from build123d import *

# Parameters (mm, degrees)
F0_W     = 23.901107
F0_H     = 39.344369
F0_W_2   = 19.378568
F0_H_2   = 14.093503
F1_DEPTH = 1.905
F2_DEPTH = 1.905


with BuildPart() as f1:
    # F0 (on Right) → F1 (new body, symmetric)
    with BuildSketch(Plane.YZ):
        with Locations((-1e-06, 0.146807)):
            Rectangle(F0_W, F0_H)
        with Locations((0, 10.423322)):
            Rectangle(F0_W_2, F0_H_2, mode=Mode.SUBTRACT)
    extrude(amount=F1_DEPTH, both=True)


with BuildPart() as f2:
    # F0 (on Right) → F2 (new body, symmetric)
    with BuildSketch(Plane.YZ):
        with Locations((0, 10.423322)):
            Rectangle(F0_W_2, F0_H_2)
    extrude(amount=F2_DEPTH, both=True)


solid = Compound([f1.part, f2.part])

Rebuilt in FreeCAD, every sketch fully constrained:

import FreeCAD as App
import Part
import Sketcher

V = App.Vector
Q = App.Units.Quantity

doc = App.newDocument("Part")
body = doc.addObject("PartDesign::Body", "Body")

sketch1 = doc.addObject("Sketcher::SketchObject", "Sketch")
body.addObject(sketch1)
sketch1.AttachmentSupport = (doc.YZ_Plane, [""])
sketch1.MapMode = "FlatFace"
sketch1.addGeometry([
    Part.LineSegment(V(-12, 20, 0), V(-12, -20, 0)),
    Part.LineSegment(V(-12, -20, 0), V(12, -20, 0)),
    Part.LineSegment(V(12, -20, 0), V(12, 20, 0)),
    Part.LineSegment(V(12, 20, 0), V(-12, 20, 0)),
    Part.LineSegment(V(10, 3, 0), V(-10, 3, 0)),
    Part.LineSegment(V(-10, 3, 0), V(-10, 17, 0)),
    Part.LineSegment(V(-10, 17, 0), V(10, 17, 0)),
    Part.LineSegment(V(10, 17, 0), V(10, 3, 0)),
], False)
sketch1.addConstraint([
    Sketcher.Constraint("Coincident", 0, 2, 1, 1),
    Sketcher.Constraint("Coincident", 1, 2, 2, 1),
    Sketcher.Constraint("Coincident", 2, 2, 3, 1),
    Sketcher.Constraint("Coincident", 3, 2, 0, 1),
    Sketcher.Constraint("Coincident", 4, 2, 5, 1),
    Sketcher.Constraint("Coincident", 5, 2, 6, 1),
    Sketcher.Constraint("Coincident", 6, 2, 7, 1),
    Sketcher.Constraint("Coincident", 7, 2, 4, 1),
    Sketcher.Constraint("Vertical", 0),
    Sketcher.Constraint("Horizontal", 1),
    Sketcher.Constraint("Vertical", 2),
    Sketcher.Constraint("Horizontal", 3),
    Sketcher.Constraint("Horizontal", 4),
    Sketcher.Constraint("Vertical", 5),
    Sketcher.Constraint("Horizontal", 6),
    Sketcher.Constraint("Vertical", 7),
    Sketcher.Constraint("DistanceX", 4, 2, 4, 1, Q("19.378568 mm")),
    Sketcher.Constraint("DistanceY", 0, 2, 0, 1, Q("39.344369 mm")),
    Sketcher.Constraint("DistanceX", 1, 1, 1, 2, Q("23.901107 mm")),
    Sketcher.Constraint("DistanceY", 5, 1, 5, 2, Q("14.093503 mm")),
    Sketcher.Constraint("DistanceY", -1, 1, 2, 2, Q("19.818991 mm")),
    Sketcher.Constraint("DistanceY", -1, 1, 4, 2, Q("3.376571 mm")),
    Sketcher.Constraint("DistanceX", 3, 2, 4, 2, Q("2.261271 mm")),
    Sketcher.Constraint("DistanceX", 0, 2, -1, 1, Q("11.950555 mm")),
])
pad1 = doc.addObject("PartDesign::Pad", "Pad")
body.addObject(pad1)
pad1.Profile = sketch1
pad1.Length = Q("0.15 in")
pad1.Midplane = True
body2 = doc.addObject("PartDesign::Body", "Body001")

sketch2 = doc.addObject("Sketcher::SketchObject", "Sketch001")
body2.addObject(sketch2)
sketch2.AttachmentSupport = (doc.getObject("YZ_Plane001"), [""])
sketch2.MapMode = "FlatFace"
sketch2.addGeometry([
    Part.LineSegment(V(-10, 17, 0), V(-10, 3, 0)),
    Part.LineSegment(V(-10, 3, 0), V(10, 3, 0)),
    Part.LineSegment(V(10, 3, 0), V(10, 17, 0)),
    Part.LineSegment(V(10, 17, 0), V(-10, 17, 0)),
], False)
sketch2.addConstraint([
    Sketcher.Constraint("Coincident", 0, 2, 1, 1),
    Sketcher.Constraint("Coincident", 1, 2, 2, 1),
    Sketcher.Constraint("Coincident", 2, 2, 3, 1),
    Sketcher.Constraint("Coincident", 3, 2, 0, 1),
    Sketcher.Constraint("Vertical", 0),
    Sketcher.Constraint("Horizontal", 1),
    Sketcher.Constraint("Vertical", 2),
    Sketcher.Constraint("Horizontal", 3),
    Sketcher.Constraint("DistanceX", 1, 1, 1, 2, Q("19.378568 mm")),
    Sketcher.Constraint("DistanceY", 0, 2, 0, 1, Q("14.093503 mm")),
    Sketcher.Constraint("DistanceY", -1, 1, 0, 2, Q("3.376571 mm")),
    Sketcher.Constraint("DistanceX", 0, 2, -1, 1, Q("9.689284 mm")),
])
pad2 = doc.addObject("PartDesign::Pad", "Pad001")
body2.addObject(pad2)
pad2.Profile = sketch2
pad2.Length = Q("0.15 in")
pad2.Midplane = True

doc.recompute()
